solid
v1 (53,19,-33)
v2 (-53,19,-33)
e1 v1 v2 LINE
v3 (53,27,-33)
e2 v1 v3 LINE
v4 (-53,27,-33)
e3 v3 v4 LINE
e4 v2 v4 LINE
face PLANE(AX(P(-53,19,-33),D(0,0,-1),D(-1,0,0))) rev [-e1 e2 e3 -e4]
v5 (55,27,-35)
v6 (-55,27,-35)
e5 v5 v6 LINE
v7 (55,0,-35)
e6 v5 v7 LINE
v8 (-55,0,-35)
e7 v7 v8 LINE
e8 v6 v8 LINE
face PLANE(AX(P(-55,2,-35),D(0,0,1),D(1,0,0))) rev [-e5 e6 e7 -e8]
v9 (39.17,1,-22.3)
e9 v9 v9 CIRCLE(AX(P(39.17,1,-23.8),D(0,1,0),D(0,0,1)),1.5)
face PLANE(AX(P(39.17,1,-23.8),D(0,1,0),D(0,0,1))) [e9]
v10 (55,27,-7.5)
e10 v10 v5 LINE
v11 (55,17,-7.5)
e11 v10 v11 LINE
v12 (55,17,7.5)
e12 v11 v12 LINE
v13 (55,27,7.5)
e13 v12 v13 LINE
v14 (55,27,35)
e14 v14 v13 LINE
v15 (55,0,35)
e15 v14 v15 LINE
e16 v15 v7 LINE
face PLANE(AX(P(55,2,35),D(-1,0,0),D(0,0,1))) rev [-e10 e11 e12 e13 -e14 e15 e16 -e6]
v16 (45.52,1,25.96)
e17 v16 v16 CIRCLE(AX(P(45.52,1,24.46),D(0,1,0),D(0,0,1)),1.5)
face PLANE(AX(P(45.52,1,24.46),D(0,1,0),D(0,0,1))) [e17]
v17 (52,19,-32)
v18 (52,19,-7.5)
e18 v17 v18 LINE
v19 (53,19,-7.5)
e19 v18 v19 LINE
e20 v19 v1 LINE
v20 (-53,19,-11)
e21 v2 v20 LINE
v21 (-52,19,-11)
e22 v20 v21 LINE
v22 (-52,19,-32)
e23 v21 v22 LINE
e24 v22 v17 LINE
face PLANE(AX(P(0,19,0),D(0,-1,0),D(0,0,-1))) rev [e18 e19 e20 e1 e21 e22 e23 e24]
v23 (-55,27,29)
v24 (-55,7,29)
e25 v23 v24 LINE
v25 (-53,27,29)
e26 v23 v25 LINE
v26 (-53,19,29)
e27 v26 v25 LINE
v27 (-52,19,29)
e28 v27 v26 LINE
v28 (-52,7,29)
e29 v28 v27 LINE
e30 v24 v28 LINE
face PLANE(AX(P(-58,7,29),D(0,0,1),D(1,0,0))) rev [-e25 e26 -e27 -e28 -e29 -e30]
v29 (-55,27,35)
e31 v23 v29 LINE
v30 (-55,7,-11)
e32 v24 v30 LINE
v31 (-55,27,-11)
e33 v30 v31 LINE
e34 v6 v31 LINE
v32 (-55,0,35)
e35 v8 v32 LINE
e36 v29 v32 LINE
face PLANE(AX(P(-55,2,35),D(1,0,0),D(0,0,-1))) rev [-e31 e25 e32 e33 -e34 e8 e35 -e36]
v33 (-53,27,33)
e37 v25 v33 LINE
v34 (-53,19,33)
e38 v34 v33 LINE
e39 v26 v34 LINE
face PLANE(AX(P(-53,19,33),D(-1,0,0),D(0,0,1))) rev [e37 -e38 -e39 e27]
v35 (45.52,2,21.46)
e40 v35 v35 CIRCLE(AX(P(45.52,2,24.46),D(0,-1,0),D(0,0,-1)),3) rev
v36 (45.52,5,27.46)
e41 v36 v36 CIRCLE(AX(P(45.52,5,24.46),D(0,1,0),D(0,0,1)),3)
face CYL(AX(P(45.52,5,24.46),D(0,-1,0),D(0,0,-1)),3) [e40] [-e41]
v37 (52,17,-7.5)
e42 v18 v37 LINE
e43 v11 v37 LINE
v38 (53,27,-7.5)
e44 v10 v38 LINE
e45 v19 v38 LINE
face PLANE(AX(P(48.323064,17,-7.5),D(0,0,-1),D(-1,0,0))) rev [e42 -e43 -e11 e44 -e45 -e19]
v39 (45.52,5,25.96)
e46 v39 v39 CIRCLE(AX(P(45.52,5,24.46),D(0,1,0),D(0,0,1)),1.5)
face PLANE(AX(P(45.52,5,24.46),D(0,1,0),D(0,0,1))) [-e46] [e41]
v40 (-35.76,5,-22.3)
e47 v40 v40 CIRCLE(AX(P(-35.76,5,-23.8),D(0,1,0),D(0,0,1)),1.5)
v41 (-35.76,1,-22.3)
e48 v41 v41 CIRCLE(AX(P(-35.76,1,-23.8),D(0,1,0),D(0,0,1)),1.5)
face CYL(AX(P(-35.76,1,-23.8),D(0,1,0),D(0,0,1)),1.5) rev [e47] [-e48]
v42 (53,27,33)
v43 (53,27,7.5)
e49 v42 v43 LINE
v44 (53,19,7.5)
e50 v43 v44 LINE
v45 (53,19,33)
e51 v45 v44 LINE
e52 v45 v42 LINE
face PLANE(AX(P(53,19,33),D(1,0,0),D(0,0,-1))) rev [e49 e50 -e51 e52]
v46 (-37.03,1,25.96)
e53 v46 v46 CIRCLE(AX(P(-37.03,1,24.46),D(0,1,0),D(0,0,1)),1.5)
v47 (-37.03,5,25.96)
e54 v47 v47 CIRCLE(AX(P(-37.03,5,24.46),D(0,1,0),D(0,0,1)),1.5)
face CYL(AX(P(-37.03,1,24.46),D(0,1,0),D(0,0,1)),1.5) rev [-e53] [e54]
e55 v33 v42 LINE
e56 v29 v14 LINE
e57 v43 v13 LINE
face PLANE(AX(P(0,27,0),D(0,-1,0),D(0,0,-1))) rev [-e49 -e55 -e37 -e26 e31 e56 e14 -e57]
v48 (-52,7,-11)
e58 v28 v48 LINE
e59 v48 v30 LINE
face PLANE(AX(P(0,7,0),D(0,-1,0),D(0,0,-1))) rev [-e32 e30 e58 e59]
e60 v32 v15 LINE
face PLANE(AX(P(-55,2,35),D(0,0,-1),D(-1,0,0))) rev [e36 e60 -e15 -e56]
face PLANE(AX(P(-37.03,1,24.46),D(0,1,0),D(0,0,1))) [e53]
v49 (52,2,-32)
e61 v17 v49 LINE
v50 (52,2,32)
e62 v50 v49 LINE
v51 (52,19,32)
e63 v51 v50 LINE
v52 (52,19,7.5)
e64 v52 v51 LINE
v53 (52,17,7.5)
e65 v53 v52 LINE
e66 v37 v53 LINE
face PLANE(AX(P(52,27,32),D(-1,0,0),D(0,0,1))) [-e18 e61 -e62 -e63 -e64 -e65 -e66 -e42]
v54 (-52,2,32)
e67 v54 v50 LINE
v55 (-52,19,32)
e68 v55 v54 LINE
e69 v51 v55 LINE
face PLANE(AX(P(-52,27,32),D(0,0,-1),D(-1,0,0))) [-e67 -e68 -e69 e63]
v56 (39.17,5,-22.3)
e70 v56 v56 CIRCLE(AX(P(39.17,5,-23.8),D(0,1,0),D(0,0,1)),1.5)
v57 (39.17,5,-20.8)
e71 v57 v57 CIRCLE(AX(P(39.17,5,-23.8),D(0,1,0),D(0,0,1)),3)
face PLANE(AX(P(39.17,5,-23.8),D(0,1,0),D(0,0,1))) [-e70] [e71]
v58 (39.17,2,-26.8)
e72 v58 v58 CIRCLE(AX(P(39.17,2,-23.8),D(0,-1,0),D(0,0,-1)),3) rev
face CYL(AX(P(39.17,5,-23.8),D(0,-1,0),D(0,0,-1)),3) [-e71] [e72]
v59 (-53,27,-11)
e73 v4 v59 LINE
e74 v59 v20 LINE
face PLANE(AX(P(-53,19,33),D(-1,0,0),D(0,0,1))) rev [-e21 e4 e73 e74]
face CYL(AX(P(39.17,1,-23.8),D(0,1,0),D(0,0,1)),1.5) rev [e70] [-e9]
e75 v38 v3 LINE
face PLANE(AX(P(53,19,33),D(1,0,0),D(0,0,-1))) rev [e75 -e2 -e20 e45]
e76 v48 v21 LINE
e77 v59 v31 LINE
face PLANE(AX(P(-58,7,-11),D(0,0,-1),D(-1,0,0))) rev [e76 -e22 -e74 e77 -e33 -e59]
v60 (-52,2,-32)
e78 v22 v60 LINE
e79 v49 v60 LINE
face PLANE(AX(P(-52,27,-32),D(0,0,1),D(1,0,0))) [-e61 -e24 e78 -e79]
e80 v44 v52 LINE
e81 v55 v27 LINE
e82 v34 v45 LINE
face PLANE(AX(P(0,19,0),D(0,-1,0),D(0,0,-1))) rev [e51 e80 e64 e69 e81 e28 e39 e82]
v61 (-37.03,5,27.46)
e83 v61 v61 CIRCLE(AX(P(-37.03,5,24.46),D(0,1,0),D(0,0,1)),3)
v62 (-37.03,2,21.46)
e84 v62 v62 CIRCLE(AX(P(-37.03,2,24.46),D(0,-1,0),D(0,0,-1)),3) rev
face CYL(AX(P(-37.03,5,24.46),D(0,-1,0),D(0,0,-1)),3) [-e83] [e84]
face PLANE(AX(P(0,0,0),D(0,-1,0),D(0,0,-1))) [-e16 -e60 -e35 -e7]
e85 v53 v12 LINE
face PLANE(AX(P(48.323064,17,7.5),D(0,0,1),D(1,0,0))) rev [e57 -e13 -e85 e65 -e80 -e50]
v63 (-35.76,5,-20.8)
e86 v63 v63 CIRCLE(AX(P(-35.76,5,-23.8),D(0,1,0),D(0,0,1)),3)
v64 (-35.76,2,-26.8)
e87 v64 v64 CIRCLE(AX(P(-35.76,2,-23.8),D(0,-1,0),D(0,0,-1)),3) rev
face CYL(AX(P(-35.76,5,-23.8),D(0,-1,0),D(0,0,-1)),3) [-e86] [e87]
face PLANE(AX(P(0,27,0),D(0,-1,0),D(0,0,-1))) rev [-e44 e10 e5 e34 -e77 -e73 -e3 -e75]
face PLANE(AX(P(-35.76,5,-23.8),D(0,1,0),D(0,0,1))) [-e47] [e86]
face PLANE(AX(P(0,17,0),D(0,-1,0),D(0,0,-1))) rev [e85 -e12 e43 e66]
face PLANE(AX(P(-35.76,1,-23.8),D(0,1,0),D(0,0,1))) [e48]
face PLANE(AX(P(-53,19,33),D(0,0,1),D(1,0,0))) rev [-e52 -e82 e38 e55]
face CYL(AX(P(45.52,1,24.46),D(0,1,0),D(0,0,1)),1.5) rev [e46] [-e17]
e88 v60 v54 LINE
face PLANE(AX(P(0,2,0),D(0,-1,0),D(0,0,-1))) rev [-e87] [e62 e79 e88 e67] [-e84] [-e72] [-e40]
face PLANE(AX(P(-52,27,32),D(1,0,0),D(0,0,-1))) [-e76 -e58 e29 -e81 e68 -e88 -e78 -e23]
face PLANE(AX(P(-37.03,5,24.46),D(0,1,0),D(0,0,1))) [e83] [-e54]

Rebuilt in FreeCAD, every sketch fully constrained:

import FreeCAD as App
import Part
import Sketcher
from FreeCAD import Vector


def add_polygon(sketch, points):
    """Adds a closed chain of lines whose ends are joined by coincident constraints."""
    first, n = sketch.GeometryCount, len(points)
    for a, b in zip(points, points[1:] + points[:1]):
        sketch.addGeometry(Part.LineSegment(App.Vector(*a, 0), App.Vector(*b, 0)), False)
    for i in range(n):
        sketch.addConstraint(Sketcher.Constraint("Coincident", first + i, 2, first + (i + 1) % n, 1))

doc = App.newDocument("Part")
body = doc.addObject("PartDesign::Body", "Body")

# Sketch on XZ plane
sketch1 = body.newObject("Sketcher::SketchObject", "Sketch")
sketch1.AttachmentSupport = (doc.getObject("XZ_Plane"), [""])
sketch1.MapMode = "FlatFace"
add_polygon(sketch1, [(-55, -35), (-55, 35), (55, 35), (55, -35)])  # lines 0-3
sketch1.addConstraint([
    Sketcher.Constraint("Vertical", 0),
    Sketcher.Constraint("Horizontal", 1),
    Sketcher.Constraint("Vertical", 2),
    Sketcher.Constraint("Horizontal", 3),
    Sketcher.Constraint("Symmetric", 0, 2, 2, 2, -1, 1),
    Sketcher.Constraint("DistanceX", 1, 1, 1, 2, 110.0),
    Sketcher.Constraint("DistanceY", 0, 1, 0, 2, 70.0),
])
pad1 = body.newObject("PartDesign::Pad", "Pad")
pad1.Profile = sketch1
pad1.Length = 2
pad1.Reversed = True

# Sketch on XZ plane
sketch2 = body.newObject("Sketcher::SketchObject", "Sketch001")
sketch2.AttachmentSupport = (doc.getObject("XZ_Plane"), [""])
sketch2.MapMode = "FlatFace"
sketch2.AttachmentOffset = App.Placement(Vector(0, 0, -2), App.Rotation())
add_polygon(sketch2, [(-55, -35), (-55, 35), (55, 35), (55, -35)])  # lines 0-3
add_polygon(sketch2, [(52, 32), (-52, 32), (-52, -32), (52, -32)])  # lines 4-7
sketch2.addConstraint([
    Sketcher.Constraint("Vertical", 0),
    Sketcher.Constraint("Horizontal", 1),
    Sketcher.Constraint("Vertical", 2),
    Sketcher.Constraint("Horizontal", 3),
    Sketcher.Constraint("Horizontal", 4),
    Sketcher.Constraint("Vertical", 5),
    Sketcher.Constraint("Horizontal", 6),
    Sketcher.Constraint("Vertical", 7),
    Sketcher.Constraint("Symmetric", 0, 2, 2, 2, -1, 1),
    Sketcher.Constraint("Symmetric", 4, 2, 6, 2, -1, 1),
    Sketcher.Constraint("DistanceX", 1, 1, 1, 2, 110.0),
    Sketcher.Constraint("DistanceX", 4, 2, 4, 1, 104.0),
    Sketcher.Constraint("DistanceY", 0, 1, 0, 2, 70.0),
    Sketcher.Constraint("DistanceY", 5, 2, 5, 1, 64.0),
])
pad2 = body.newObject("PartDesign::Pad", "Pad001")
pad2.Profile = sketch2
pad2.Length = 25
pad2.Reversed = True

# Sketch on XZ plane
sketch3 = body.newObject("Sketcher::SketchObject", "Sketch002")
sketch3.AttachmentSupport = (doc.getObject("XZ_Plane"), [""])
sketch3.MapMode = "FlatFace"
sketch3.AttachmentOffset = App.Placement(Vector(0, 0, -27), App.Rotation())
add_polygon(sketch3, [(-53, -33), (-53, 33), (53, 33), (53, -33)])  # lines 0-3
sketch3.addConstraint([
    Sketcher.Constraint("Vertical", 0),
    Sketcher.Constraint("Horizontal", 1),
    Sketcher.Constraint("Vertical", 2),
    Sketcher.Constraint("Horizontal", 3),
    Sketcher.Constraint("Symmetric", 0, 2, 2, 2, -1, 1),
    Sketcher.Constraint("DistanceX", 1, 1, 1, 2, 106.0),
    Sketcher.Constraint("DistanceY", 0, 1, 0, 2, 66.0),
])
pocket1 = body.newObject("PartDesign::Pocket", "Pocket")
pocket1.Profile = sketch3
pocket1.Length = 8
pocket1.Reversed = True

# Sketch on XZ plane
sketch4 = body.newObject("Sketcher::SketchObject", "Sketch003")
sketch4.AttachmentSupport = (doc.getObject("XZ_Plane"), [""])
sketch4.MapMode = "FlatFace"
sketch4.AttachmentOffset = App.Placement(Vector(0, 0, -2), App.Rotation())
sketch4.addGeometry([
    Part.Circle(Vector(-37, 24.5, 0), Vector(0, 0, 1), 3),
    Part.Circle(Vector(-35.8, -23.8, 0), Vector(0, 0, 1), 3),
    Part.Circle(Vector(39.2, -23.8, 0), Vector(0, 0, 1), 3),
    Part.Circle(Vector(45.5, 24.5, 0), Vector(0, 0, 1), 3),
], False)
sketch4.addConstraint([
    Sketcher.Constraint("Equal", 0, 1),
    Sketcher.Constraint("Equal", 1, 2),
    Sketcher.Constraint("Equal", 2, 3),
    Sketcher.Constraint("Horizontal", 1, 3, 2, 3),
    Sketcher.Constraint("Horizontal", 0, 3, 3, 3),
    Sketcher.Constraint("Diameter", 0, 6.0),
    Sketcher.Constraint("DistanceY", 1, 3, -1, 1, 23.8),
    Sketcher.Constraint("DistanceX", 0, 3, 2, 3, 76.2),
    Sketcher.Constraint("DistanceX", 0, 3, -1, 1, 37.03),
    Sketcher.Constraint("DistanceY", -1, 1, 0, 3, 24.46),
    Sketcher.Constraint("DistanceX", 1, 3, -1, 1, 35.76),
    Sketcher.Constraint("DistanceX", -1, 1, 3, 3, 45.52),
])
pad3 = body.newObject("PartDesign::Pad", "Pad002")
pad3.Profile = sketch4
pad3.Length = 3
pad3.Reversed = True

# Sketch on XZ plane
sketch5 = body.newObject("Sketcher::SketchObject", "Sketch004")
sketch5.AttachmentSupport = (doc.getObject("XZ_Plane"), [""])
sketch5.MapMode = "FlatFace"
sketch5.AttachmentOffset = App.Placement(Vector(0, 0, -5), App.Rotation())
sketch5.addGeometry([
    Part.Circle(Vector(-35.8, -23.8, 0), Vector(0, 0, 1), 1.5),
    Part.Circle(Vector(-37, 24.5, 0), Vector(0, 0, 1), 1.5),
    Part.Circle(Vector(39.2, -23.8, 0), Vector(0, 0, 1), 1.5),
    Part.Circle(Vector(45.5, 24.5, 0), Vector(0, 0, 1), 1.5),
], False)
sketch5.addConstraint([
    Sketcher.Constraint("Equal", 0, 1),
    Sketcher.Constraint("Equal", 1, 2),
    Sketcher.Constraint("Equal", 2, 3),
    Sketcher.Constraint("Horizontal", 0, 3, 2, 3),
    Sketcher.Constraint("Horizontal", 1, 3, 3, 3),
    Sketcher.Constraint("Diameter", 0, 3.0),
    Sketcher.Constraint("DistanceY", 0, 3, -1, 1, 23.8),
    Sketcher.Constraint("DistanceX", 1, 3, 2, 3, 76.2),
    Sketcher.Constraint("DistanceX", 0, 3, -1, 1, 35.76),
    Sketcher.Constraint("DistanceX", 1, 3, -1, 1, 37.03),
    Sketcher.Constraint("DistanceY", -1, 1, 1, 3, 24.46),
    Sketcher.Constraint("DistanceX", -1, 1, 3, 3, 45.52),
])
pocket2 = body.newObject("PartDesign::Pocket", "Pocket001")
pocket2.Profile = sketch5
pocket2.Length = 4
pocket2.Reversed = True

# Sketch on XZ plane
sketch6 = body.newObject("Sketcher::SketchObject", "Sketch005")
sketch6.AttachmentSupport = (doc.getObject("XZ_Plane"), [""])
sketch6.MapMode = "FlatFace"
sketch6.AttachmentOffset = App.Placement(Vector(0, 0, -27), App.Rotation())
add_polygon(sketch6, [(-58, -11), (-58, 29), (-52, 29), (-52, -11)])  # lines 0-3
sketch6.addConstraint([
    Sketcher.Constraint("Vertical", 0),
    Sketcher.Constraint("Horizontal", 1),
    Sketcher.Constraint("Vertical", 2),
    Sketcher.Constraint("Horizontal", 3),
    Sketcher.Constraint("DistanceX", 1, 1, 1, 2, 6.0),
    Sketcher.Constraint("DistanceY", 0, 1, 0, 2, 40.0),
    Sketcher.Constraint("DistanceX", 0, 2, -1, 1, 58.0),
    Sketcher.Constraint("DistanceY", -1, 1, 0, 2, 29.0),
])
pocket3 = body.newObject("PartDesign::Pocket", "Pocket002")
pocket3.Profile = sketch6
pocket3.Length = 20
pocket3.Reversed = True

# Sketch on XZ plane
sketch7 = body.newObject("Sketcher::SketchObject", "Sketch006")
sketch7.AttachmentSupport = (doc.getObject("XZ_Plane"), [""])
sketch7.MapMode = "FlatFace"
sketch7.AttachmentOffset = App.Placement(Vector(0, 0, -27), App.Rotation())
add_polygon(sketch7, [(48, -8), (48, 8), (58, 8), (58, -8)])  # lines 0-3
sketch7.addConstraint([
    Sketcher.Constraint("Vertical", 0),
    Sketcher.Constraint("Horizontal", 1),
    Sketcher.Constraint("Vertical", 2),
    Sketcher.Constraint("Horizontal", 3),
    Sketcher.Constraint("DistanceY", 0, 1, 0, 2, 15.0),
    Sketcher.Constraint("DistanceY", -1, 1, 0, 2, 7.5),
    Sketcher.Constraint("DistanceX", 1, 1, 1, 2, 9.353872),
    Sketcher.Constraint("DistanceX", -1, 1, 0, 2, 48.323064),
])
pocket4 = body.newObject("PartDesign::Pocket", "Pocket003")
pocket4.Profile = sketch7
pocket4.Length = 10
pocket4.Reversed = True

doc.recompute()
